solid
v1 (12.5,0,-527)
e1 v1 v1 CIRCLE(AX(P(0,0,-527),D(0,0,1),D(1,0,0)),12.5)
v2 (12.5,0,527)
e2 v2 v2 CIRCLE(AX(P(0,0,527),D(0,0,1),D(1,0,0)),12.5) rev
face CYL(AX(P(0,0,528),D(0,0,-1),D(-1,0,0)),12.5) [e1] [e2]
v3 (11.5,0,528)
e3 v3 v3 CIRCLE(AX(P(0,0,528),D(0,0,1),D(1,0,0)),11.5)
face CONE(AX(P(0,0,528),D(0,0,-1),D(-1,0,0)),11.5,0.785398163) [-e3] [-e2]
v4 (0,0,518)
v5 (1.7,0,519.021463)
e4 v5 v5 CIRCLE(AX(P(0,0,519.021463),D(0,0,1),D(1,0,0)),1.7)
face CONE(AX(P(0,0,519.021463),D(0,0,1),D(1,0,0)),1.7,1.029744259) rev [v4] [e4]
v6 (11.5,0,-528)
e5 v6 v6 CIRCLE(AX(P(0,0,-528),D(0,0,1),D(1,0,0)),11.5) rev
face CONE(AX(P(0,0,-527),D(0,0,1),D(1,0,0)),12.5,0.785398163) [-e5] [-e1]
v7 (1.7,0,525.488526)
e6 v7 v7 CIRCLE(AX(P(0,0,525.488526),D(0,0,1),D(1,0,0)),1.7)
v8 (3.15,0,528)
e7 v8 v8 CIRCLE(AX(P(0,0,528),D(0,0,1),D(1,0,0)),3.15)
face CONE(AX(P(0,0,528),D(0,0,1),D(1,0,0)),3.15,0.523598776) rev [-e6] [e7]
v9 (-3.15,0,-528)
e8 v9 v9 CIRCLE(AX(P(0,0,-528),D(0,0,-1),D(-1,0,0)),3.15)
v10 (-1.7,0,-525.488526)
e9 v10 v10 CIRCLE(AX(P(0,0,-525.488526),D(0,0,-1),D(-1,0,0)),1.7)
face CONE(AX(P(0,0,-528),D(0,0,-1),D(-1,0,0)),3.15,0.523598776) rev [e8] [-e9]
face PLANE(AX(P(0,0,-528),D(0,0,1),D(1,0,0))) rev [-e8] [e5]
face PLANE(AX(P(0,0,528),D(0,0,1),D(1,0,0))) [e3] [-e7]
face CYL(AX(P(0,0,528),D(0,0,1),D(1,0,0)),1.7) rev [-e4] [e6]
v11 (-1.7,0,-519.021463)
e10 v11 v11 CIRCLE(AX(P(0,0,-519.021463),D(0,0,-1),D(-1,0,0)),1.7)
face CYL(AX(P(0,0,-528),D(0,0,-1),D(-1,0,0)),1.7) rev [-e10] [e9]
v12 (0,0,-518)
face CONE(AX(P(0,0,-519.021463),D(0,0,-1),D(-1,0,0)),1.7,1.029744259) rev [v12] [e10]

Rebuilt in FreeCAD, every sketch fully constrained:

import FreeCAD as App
import Part
import Sketcher
Q = App.Units.Quantity


def edges_at(feature, points):
    """Names of the edges that pass closest to the given points."""
    edges = feature.Shape.Edges
    near = lambda p: min(range(len(edges)), key=lambda i: edges[i].distToShape(Part.Vertex(*p))[0])
    return sorted({f"Edge{near(p) + 1}" for p in points})


def add_polygon(sketch, points):
    """Adds a closed chain of lines whose ends are joined by coincident constraints."""
    first, n = sketch.GeometryCount, len(points)
    for a, b in zip(points, points[1:] + points[:1]):
        sketch.addGeometry(Part.LineSegment(App.Vector(*a, 0), App.Vector(*b, 0)), False)
    for i in range(n):
        sketch.addConstraint(Sketcher.Constraint("Coincident", first + i, 2, first + (i + 1) % n, 1))

doc = App.newDocument("Part")
params = doc.addObject("Spreadsheet::Sheet", "Params")
for row, (alias, value) in enumerate([
    ("sketch1_diameter", "25 mm"),
    ("pad1_length", "1056 mm"),
    ("sketch2_height", "10 mm"),
    ("sketch2_length", "2.9 mm"),
    ("sketch2_width", "3.15 mm"),
    ("groove_angle", "360 deg"),
    ("chamfer_size", "1 mm"),
], start=1):
    params.set(f"A{row}", alias)
    params.set(f"B{row}", "=" + value)
    params.setAlias(f"B{row}", alias)

body = doc.addObject("PartDesign::Body", "Body")

sketch1 = body.newObject("Sketcher::SketchObject", "Sketch")
sketch1.AttachmentSupport = (doc.getObject("XY_Plane"), [""])
sketch1.MapMode = "FlatFace"
sketch1.addGeometry(Part.Circle(App.Vector(0, 0, 0), App.Vector(0, 0, 1), 12), False)
sketch1.addConstraint(Sketcher.Constraint("Coincident", 0, 3, -1, 1))
sketch1.addConstraint(Sketcher.Constraint("Diameter", 0, 25.0))
sketch1.setExpression("Constraints[1]", "Params.sketch1_diameter")
pad1 = body.newObject("PartDesign::Pad", "Pad")
pad1.Profile = sketch1
pad1.setExpression("Length", "Params.pad1_length")
pad1.Midplane = True

sketch2 = body.newObject("Sketcher::SketchObject", "Sketch001")
sketch2.AttachmentSupport = (doc.getObject("YZ_Plane"), [""])
sketch2.MapMode = "FlatFace"
add_polygon(sketch2, [(0, -518), (0, -528), (3.1, -528), (1.7, -525.5), (1.7, -519)])
sketch2.addConstraint(Sketcher.Constraint("Vertical", 0))
sketch2.addConstraint(Sketcher.Constraint("Horizontal", 1))
sketch2.addConstraint(Sketcher.Constraint("Vertical", 3))
sketch2.addConstraint(Sketcher.Constraint("PointOnObject", 0, 2, -2))
sketch2.addConstraint(Sketcher.Constraint("DistanceY", 0, 2, 0, 1, 10.0))
sketch2.addConstraint(Sketcher.Constraint("Angle", 2, Q("120 deg")))
sketch2.addConstraint(Sketcher.Constraint("Angle", 4, Q("149 deg")))
sketch2.addConstraint(Sketcher.Constraint("DistanceY", 0, 2, -1, 1, 528.0))
sketch2.addConstraint(Sketcher.Constraint("Distance", 2, 2.9))
sketch2.addConstraint(Sketcher.Constraint("DistanceX", 1, 1, 1, 2, 3.15))
sketch2.setExpression("Constraints[9]", "Params.sketch2_height")
sketch2.setExpression("Constraints[13]", "Params.sketch2_length")
sketch2.setExpression("Constraints[14]", "Params.sketch2_width")
groove = body.newObject("PartDesign::Groove", "Groove")
groove.Profile = sketch2
groove.ReferenceAxis = (sketch2, ["V_Axis"])
groove.setExpression("Angle", "Params.groove_angle")
doc.recompute()

mirrored = body.newObject("PartDesign::Mirrored", "Mirrored")
mirrored.Originals = [groove]
mirrored.MirrorPlane = (doc.getObject("XY_Plane"), [""])
body.Tip = mirrored
doc.recompute()

chamfer = body.newObject("PartDesign::Chamfer", "Chamfer")
chamfer.Base = (mirrored, edges_at(mirrored, [(-12.5, 0, -528), (-12.5, 0, 528)]))
chamfer.setExpression("Size", "Params.chamfer_size")

doc.recompute()
